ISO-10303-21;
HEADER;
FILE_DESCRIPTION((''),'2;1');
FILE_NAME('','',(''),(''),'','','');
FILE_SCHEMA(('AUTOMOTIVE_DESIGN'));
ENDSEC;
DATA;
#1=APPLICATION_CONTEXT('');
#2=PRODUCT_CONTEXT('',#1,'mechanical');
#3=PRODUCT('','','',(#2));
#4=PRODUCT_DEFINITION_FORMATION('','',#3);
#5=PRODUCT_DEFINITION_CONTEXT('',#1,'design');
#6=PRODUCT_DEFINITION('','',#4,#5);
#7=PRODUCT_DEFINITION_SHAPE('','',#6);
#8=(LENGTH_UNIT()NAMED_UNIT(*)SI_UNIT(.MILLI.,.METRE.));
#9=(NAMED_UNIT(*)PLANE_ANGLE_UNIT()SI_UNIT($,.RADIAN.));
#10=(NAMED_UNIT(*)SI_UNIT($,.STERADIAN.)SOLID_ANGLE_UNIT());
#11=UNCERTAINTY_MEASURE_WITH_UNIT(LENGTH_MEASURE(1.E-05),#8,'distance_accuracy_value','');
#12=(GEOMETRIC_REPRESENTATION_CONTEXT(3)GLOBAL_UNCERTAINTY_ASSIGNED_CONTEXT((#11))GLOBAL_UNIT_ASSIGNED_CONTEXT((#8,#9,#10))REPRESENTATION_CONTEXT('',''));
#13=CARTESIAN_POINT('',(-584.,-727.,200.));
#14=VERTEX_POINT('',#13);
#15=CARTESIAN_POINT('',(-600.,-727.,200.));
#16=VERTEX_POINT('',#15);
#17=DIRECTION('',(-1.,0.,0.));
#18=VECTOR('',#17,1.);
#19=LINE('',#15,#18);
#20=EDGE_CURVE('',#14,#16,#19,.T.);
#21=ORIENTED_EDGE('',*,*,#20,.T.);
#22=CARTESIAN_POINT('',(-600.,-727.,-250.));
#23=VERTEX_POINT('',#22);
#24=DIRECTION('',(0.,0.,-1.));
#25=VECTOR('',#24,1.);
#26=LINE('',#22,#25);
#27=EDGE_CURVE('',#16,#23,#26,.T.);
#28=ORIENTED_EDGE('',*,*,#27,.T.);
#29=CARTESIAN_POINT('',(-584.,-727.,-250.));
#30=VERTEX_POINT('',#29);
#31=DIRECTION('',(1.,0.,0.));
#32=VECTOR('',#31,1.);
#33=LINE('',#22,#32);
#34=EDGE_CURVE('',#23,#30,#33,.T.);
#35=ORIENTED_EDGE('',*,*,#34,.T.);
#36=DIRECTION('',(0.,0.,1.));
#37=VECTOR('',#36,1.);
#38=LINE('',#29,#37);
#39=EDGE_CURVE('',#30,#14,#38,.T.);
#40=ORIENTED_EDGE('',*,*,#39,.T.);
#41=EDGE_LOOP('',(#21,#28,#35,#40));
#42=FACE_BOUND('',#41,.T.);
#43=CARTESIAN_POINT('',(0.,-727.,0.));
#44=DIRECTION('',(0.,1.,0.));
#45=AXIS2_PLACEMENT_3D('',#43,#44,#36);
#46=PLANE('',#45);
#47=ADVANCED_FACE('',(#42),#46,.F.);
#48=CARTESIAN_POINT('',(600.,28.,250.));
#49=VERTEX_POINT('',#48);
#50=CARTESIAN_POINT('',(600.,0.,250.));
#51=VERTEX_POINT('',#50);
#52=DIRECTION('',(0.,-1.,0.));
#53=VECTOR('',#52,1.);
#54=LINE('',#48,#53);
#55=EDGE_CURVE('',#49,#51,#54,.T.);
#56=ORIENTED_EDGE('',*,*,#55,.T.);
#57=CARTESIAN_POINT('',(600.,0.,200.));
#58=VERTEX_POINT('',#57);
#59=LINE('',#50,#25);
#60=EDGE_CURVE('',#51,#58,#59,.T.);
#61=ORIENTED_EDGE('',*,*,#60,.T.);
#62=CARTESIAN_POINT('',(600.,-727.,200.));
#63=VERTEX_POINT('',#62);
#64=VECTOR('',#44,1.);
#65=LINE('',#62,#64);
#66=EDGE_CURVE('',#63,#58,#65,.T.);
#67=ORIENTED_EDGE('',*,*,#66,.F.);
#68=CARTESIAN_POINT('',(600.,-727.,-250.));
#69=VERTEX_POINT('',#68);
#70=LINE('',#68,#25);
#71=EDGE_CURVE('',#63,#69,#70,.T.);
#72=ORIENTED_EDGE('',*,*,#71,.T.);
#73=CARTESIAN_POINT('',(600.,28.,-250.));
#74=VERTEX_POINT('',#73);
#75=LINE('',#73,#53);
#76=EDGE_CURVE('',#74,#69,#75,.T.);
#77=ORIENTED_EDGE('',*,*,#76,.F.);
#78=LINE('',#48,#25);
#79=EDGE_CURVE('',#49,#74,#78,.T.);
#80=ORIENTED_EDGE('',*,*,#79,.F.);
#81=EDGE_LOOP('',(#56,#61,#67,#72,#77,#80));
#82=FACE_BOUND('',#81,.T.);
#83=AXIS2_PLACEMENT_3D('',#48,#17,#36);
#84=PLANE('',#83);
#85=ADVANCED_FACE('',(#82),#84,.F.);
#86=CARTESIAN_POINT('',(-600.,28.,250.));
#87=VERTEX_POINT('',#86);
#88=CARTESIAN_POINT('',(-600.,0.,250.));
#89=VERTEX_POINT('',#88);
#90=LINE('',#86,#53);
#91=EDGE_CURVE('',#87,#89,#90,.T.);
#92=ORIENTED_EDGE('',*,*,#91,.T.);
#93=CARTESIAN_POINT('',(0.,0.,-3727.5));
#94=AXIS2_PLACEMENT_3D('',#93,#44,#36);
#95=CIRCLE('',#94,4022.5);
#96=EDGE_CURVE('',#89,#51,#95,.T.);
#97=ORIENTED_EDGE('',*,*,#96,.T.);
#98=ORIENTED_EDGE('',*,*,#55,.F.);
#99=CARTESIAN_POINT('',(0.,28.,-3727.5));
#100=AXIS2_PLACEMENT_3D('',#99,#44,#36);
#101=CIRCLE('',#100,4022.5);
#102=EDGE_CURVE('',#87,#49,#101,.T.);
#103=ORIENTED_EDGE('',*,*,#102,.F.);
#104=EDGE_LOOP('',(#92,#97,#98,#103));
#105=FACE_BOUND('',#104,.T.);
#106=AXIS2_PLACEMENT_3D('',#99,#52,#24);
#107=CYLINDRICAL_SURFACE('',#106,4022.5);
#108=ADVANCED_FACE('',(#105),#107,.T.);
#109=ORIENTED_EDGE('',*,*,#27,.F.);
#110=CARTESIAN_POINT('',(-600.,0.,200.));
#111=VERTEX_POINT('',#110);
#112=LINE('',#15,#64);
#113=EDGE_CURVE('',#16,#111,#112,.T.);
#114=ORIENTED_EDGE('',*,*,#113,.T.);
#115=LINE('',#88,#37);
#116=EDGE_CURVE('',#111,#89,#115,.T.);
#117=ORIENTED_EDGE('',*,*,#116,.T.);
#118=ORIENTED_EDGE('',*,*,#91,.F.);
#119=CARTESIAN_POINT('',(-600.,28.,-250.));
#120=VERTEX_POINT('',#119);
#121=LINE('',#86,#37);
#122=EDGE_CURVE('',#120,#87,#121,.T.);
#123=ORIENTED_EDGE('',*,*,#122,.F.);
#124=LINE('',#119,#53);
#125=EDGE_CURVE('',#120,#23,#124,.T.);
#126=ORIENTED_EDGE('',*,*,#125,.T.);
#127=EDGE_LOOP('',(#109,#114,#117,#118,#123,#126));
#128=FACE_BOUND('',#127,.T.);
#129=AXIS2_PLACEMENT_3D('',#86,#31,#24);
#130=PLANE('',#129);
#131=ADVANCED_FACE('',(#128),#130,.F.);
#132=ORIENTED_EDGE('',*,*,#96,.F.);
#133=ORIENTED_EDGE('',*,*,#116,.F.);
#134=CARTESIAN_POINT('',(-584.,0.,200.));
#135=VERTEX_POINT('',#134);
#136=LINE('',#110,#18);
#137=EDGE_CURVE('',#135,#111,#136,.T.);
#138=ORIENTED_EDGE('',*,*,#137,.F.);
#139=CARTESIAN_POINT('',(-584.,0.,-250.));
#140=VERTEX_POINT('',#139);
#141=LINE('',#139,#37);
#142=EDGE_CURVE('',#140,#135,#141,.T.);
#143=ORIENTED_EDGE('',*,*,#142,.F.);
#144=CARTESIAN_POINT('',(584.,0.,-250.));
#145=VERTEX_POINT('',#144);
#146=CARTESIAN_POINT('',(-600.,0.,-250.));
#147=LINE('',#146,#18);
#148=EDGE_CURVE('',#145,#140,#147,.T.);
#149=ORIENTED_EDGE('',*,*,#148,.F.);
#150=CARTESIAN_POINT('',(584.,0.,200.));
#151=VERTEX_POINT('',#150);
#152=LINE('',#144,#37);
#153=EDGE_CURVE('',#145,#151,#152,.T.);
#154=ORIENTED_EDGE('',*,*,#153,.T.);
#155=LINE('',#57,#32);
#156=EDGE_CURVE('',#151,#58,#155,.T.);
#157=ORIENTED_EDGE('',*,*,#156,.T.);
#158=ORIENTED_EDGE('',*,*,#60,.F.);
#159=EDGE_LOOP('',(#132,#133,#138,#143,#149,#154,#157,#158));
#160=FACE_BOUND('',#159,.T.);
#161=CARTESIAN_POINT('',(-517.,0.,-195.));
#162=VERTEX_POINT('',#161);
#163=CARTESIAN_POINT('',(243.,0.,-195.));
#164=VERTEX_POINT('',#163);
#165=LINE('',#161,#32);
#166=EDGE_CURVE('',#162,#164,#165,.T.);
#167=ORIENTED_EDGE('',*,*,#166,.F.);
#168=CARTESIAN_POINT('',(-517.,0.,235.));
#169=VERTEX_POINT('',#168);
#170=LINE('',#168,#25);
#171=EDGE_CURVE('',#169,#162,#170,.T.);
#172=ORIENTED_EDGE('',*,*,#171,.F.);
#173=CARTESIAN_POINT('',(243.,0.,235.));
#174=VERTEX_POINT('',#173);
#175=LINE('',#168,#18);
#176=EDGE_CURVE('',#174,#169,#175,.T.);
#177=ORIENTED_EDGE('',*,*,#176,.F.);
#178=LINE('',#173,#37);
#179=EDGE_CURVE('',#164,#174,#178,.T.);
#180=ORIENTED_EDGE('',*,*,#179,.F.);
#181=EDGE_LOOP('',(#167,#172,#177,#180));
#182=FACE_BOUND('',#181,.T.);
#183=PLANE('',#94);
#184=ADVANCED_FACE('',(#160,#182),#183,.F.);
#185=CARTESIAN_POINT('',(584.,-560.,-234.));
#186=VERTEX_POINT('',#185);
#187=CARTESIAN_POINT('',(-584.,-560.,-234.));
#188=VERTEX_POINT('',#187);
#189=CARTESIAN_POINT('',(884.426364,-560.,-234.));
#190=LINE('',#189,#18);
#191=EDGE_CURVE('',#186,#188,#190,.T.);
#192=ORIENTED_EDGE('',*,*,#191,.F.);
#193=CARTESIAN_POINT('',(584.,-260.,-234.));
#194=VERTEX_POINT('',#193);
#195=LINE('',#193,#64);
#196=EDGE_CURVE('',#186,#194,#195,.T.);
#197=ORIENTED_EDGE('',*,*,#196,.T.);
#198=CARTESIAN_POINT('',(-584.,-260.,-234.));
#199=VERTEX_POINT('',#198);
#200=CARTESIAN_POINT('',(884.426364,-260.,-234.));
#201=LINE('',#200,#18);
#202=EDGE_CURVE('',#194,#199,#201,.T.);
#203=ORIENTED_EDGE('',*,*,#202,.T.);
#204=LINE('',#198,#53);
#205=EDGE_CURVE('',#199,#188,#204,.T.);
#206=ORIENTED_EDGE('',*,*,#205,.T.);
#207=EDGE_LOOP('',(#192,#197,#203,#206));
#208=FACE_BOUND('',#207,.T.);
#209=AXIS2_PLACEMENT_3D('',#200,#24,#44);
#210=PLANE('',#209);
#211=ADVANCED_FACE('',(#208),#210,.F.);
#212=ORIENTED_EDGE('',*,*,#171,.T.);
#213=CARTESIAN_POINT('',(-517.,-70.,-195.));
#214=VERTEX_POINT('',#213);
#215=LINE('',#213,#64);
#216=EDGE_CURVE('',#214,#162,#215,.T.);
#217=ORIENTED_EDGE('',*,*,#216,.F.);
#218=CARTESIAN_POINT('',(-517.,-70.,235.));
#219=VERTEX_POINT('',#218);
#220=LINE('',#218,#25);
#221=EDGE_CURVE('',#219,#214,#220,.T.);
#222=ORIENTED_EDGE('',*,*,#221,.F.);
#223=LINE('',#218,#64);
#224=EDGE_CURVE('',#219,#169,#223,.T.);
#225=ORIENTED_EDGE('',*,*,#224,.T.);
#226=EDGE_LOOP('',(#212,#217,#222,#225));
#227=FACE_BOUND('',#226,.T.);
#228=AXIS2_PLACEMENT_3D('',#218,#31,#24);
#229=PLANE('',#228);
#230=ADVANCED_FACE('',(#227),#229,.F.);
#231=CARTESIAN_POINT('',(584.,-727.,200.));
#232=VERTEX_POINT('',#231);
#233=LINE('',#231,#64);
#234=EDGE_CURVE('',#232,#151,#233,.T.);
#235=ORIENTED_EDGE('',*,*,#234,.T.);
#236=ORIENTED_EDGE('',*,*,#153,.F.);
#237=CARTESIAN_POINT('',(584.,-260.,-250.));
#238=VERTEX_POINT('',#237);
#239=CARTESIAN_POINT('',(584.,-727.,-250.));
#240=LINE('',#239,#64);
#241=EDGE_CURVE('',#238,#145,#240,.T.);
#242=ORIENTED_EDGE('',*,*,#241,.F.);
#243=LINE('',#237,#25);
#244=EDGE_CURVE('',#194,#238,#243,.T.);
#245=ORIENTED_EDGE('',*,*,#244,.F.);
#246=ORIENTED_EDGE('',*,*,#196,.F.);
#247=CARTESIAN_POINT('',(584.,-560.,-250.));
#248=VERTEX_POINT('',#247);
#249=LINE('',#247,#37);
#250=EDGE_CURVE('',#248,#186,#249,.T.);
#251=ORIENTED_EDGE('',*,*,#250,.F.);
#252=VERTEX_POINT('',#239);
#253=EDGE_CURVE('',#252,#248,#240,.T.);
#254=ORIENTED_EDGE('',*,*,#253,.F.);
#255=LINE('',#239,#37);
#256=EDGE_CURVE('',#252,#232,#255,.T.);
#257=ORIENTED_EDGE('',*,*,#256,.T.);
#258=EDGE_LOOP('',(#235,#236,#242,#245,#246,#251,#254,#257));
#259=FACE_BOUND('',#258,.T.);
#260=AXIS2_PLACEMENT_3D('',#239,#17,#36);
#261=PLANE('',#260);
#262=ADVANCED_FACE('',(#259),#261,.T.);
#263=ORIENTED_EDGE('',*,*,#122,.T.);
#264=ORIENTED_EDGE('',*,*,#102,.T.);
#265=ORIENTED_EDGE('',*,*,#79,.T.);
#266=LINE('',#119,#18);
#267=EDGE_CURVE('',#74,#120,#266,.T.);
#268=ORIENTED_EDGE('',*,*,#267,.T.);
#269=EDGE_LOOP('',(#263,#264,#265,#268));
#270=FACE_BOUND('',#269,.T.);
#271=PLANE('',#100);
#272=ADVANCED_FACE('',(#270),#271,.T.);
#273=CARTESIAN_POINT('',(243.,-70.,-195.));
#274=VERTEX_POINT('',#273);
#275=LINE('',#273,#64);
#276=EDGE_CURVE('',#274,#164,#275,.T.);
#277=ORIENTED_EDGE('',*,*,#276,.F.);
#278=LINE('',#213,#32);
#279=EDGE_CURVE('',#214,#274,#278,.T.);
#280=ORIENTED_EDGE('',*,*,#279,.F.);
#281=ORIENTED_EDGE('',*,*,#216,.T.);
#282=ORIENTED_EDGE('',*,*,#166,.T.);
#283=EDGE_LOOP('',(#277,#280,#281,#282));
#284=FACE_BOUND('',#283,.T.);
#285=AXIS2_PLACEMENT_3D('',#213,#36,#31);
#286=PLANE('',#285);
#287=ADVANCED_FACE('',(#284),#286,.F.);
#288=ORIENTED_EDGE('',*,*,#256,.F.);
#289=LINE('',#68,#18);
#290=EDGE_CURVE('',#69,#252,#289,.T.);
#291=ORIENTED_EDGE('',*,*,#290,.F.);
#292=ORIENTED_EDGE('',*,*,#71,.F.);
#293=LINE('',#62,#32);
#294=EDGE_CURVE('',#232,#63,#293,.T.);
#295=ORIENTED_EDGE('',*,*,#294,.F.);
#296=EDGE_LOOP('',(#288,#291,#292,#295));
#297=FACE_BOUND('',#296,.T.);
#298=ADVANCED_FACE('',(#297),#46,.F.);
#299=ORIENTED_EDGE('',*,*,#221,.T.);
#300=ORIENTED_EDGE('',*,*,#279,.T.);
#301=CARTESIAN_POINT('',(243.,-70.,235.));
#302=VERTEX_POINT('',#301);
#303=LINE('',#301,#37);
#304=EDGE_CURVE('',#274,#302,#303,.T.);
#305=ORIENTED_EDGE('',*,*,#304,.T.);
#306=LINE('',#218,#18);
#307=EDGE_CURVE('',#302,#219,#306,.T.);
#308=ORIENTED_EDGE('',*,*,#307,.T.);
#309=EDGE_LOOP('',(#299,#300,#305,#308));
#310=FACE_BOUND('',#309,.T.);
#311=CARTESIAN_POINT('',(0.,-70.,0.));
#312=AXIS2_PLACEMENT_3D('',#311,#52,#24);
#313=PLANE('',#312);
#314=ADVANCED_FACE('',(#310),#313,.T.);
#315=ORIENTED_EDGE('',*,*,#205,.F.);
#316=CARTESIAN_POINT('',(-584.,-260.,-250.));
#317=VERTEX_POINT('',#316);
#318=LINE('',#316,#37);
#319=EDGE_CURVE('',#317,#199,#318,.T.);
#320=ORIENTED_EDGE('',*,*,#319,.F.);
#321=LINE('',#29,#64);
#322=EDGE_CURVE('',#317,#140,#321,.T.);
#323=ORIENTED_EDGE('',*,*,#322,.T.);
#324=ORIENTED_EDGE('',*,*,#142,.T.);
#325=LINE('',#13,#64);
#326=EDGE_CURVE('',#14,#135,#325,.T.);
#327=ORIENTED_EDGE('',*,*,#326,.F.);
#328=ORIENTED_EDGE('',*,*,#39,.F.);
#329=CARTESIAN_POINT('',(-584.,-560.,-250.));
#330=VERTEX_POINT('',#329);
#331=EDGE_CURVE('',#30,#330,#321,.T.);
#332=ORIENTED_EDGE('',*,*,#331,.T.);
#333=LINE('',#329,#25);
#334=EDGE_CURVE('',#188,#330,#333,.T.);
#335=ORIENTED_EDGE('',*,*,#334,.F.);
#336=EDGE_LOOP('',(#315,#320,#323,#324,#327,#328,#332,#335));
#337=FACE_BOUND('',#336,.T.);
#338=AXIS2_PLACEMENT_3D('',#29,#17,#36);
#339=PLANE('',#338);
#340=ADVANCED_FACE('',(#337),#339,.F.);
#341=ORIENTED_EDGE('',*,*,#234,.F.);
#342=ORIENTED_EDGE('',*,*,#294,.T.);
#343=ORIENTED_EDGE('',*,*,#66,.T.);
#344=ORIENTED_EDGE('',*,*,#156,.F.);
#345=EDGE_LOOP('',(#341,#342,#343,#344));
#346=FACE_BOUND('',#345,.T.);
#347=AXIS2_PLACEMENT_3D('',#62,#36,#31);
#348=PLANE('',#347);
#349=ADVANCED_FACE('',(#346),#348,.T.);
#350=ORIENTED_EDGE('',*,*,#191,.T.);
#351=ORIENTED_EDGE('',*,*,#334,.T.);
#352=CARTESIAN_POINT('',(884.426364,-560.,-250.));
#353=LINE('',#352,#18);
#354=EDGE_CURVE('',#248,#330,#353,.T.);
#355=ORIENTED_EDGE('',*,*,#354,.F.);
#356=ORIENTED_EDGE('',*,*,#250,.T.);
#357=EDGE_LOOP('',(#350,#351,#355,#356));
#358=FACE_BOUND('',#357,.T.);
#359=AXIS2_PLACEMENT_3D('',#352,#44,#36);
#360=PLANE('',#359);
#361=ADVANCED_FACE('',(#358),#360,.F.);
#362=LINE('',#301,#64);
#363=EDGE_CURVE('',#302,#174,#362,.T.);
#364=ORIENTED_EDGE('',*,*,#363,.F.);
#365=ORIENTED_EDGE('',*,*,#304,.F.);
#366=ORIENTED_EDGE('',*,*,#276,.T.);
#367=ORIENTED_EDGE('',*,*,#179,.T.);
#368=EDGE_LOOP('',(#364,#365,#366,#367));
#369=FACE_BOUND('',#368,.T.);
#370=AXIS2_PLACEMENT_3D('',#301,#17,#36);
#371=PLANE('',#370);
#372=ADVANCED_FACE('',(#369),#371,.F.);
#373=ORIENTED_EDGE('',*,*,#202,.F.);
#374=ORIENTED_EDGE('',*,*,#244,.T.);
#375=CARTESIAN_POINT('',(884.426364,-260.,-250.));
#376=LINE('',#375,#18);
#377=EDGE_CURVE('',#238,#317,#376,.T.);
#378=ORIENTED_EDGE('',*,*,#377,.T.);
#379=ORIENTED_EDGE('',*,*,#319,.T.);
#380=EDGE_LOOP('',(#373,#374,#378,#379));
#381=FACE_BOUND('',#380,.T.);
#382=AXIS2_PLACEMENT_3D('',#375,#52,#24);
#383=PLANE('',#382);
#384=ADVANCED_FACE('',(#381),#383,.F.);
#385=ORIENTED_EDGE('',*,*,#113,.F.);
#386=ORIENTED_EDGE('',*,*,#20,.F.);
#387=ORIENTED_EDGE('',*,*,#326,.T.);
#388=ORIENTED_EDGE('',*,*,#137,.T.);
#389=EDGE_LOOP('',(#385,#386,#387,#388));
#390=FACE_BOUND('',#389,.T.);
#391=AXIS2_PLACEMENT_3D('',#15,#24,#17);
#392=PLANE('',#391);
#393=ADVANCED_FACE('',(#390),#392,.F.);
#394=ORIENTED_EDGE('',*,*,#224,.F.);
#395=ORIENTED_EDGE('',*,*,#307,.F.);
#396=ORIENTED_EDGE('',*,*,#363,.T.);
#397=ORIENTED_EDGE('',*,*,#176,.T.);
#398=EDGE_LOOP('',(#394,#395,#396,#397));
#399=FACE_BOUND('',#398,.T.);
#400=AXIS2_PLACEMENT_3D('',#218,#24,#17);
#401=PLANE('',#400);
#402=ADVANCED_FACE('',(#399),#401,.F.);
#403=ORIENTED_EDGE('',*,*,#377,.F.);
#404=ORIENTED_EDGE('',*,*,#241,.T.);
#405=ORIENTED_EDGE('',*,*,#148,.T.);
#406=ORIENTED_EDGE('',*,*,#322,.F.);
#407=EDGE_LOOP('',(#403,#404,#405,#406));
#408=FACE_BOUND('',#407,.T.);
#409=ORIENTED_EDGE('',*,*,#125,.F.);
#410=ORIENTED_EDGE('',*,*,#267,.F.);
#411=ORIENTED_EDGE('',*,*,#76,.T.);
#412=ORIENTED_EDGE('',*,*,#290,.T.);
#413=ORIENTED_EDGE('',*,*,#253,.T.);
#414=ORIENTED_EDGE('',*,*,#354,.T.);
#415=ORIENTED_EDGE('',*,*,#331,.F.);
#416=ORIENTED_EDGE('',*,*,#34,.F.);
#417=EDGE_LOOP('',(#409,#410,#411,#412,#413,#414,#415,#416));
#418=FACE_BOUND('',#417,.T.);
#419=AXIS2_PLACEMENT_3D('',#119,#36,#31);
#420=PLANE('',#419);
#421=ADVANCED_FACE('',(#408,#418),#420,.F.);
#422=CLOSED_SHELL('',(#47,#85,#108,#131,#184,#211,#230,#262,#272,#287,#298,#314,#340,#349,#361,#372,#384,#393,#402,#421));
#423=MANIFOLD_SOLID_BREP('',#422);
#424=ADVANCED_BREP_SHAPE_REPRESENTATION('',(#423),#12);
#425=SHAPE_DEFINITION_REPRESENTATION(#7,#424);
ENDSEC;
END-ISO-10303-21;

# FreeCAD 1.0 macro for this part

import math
import FreeCAD as App
import Part
import Sketcher

V = App.Vector
Q = App.Units.Quantity


def add_polygon(sketch, points):
    """Adds a closed chain of lines whose ends are joined by coincident constraints."""
    first, n = sketch.GeometryCount, len(points)
    for a, b in zip(points, points[1:] + points[:1]):
        sketch.addGeometry(Part.LineSegment(App.Vector(*a, 0), App.Vector(*b, 0)), False)
    for i in range(n):
        sketch.addConstraint(Sketcher.Constraint("Coincident", first + i, 2, first + (i + 1) % n, 1))

doc = App.newDocument("Part")
params = doc.addObject("Spreadsheet::Sheet", "Params")
for row, (alias, value) in enumerate([
    ("sketch1_radius", "4022.5 mm"),
    ("sketch1_width", "1200 mm"),
    ("sketch1_height", "500 mm"),
    ("pad1_length", "28 mm"),
    ("sketch2_width", "16 mm"),
    ("sketch2_height", "450 mm"),
    ("pad2_length", "727 mm"),
    ("sketch3_width", "300 mm"),
    ("sketch3_height", "16 mm"),
    ("pad3_length", "1168 mm"),
    ("sketch4_width", "760 mm"),
    ("sketch4_height", "430 mm"),
    ("pad4_length", "70 mm"),
], start=1):
    params.set(f"A{row}", alias)
    params.set(f"B{row}", "=" + value)
    params.setAlias(f"B{row}", alias)

body = doc.addObject("PartDesign::Body", "Body")

sketch1 = body.newObject("Sketcher::SketchObject", "Sketch")
sketch1.AttachmentSupport = (doc.getObject("XZ_Plane"), [""])
sketch1.MapMode = "FlatFace"
sketch1.addGeometry([
    Part.LineSegment(V(-600, -250, 0), V(-600, 250, 0)),
    Part.ArcOfCircle(Part.Circle(V(0, -3728, 0), V(0, 0, 1), 4022), math.radians(81.42), math.radians(98.58)),
    Part.LineSegment(V(600, 250, 0), V(600, -250, 0)),
    Part.LineSegment(V(600, -250, 0), V(-600, -250, 0)),
], False)
sketch1.addConstraint([
    Sketcher.Constraint("Coincident", 0, 2, 1, 2),
    Sketcher.Constraint("Coincident", 1, 1, 2, 1),
    Sketcher.Constraint("Coincident", 2, 2, 3, 1),
    Sketcher.Constraint("Coincident", 3, 2, 0, 1),
    Sketcher.Constraint("Vertical", 0),
    Sketcher.Constraint("Vertical", 2),
    Sketcher.Constraint("Horizontal", 3),
    Sketcher.Constraint("Symmetric", 0, 2, 2, 2, -1, 1),
    Sketcher.Constraint("PointOnObject", 1, 3, -2),
    Sketcher.Constraint("Radius", 1, Q("4022.5 mm")),
    Sketcher.Constraint("DistanceX", 3, 2, 3, 1, Q("1200 mm")),
    Sketcher.Constraint("DistanceY", 0, 1, 0, 2, Q("500 mm")),
])
sketch1.setExpression("Constraints[9]", "Params.sketch1_radius")
sketch1.setExpression("Constraints[10]", "Params.sketch1_width")
sketch1.setExpression("Constraints[11]", "Params.sketch1_height")
pad1 = body.newObject("PartDesign::Pad", "Pad")
pad1.Profile = sketch1
pad1.setExpression("Length", "Params.pad1_length")
pad1.Reversed = True

sketch2 = body.newObject("Sketcher::SketchObject", "Sketch001")
sketch2.AttachmentSupport = (doc.getObject("XZ_Plane"), [""])
sketch2.MapMode = "FlatFace"
add_polygon(sketch2, [(-600, 200), (-600, -250), (-584, -250), (-584, 200)])
sketch2.addConstraint([
    Sketcher.Constraint("Vertical", 0),
    Sketcher.Constraint("Horizontal", 1),
    Sketcher.Constraint("Vertical", 2),
    Sketcher.Constraint("Horizontal", 3),
    Sketcher.Constraint("DistanceX", 1, 1, 1, 2, Q("16 mm")),
    Sketcher.Constraint("DistanceY", 0, 2, 0, 1, Q("450 mm")),
    Sketcher.Constraint("DistanceX", 0, 2, -1, 1, Q("600 mm")),
    Sketcher.Constraint("DistanceY", 0, 2, -1, 1, Q("250 mm")),
])
sketch2.setExpression("Constraints[8]", "Params.sketch2_width")
sketch2.setExpression("Constraints[9]", "Params.sketch2_height")
pad2 = body.newObject("PartDesign::Pad", "Pad001")
pad2.Profile = sketch2
pad2.setExpression("Length", "Params.pad2_length")
doc.recompute()

mirrored = body.newObject("PartDesign::Mirrored", "Mirrored")
mirrored.Originals = [pad2]
mirrored.MirrorPlane = (doc.getObject("YZ_Plane"), [""])
body.Tip = mirrored

sketch3 = body.newObject("Sketcher::SketchObject", "Sketch002")
sketch3.AttachmentSupport = (doc.getObject("YZ_Plane"), [""])
sketch3.MapMode = "FlatFace"
sketch3.AttachmentOffset = App.Placement(V(0, 0, -584), App.Rotation())
add_polygon(sketch3, [(-260, -234), (-560, -234), (-560, -250), (-260, -250)])
sketch3.addConstraint([
    Sketcher.Constraint("Horizontal", 0),
    Sketcher.Constraint("Vertical", 1),
    Sketcher.Constraint("Horizontal", 2),
    Sketcher.Constraint("Vertical", 3),
    Sketcher.Constraint("DistanceX", 0, 2, 0, 1, Q("300 mm")),
    Sketcher.Constraint("DistanceY", 1, 2, 1, 1, Q("16 mm")),
    Sketcher.Constraint("DistanceX", 0, 2, -1, 1, Q("560 mm")),
    Sketcher.Constraint("DistanceY", 0, 2, -1, 1, Q("234 mm")),
])
sketch3.setExpression("Constraints[8]", "Params.sketch3_width")
sketch3.setExpression("Constraints[9]", "Params.sketch3_height")
pad3 = body.newObject("PartDesign::Pad", "Pad002")
pad3.Profile = sketch3
pad3.setExpression("Length", "Params.pad3_length")

sketch4 = body.newObject("Sketcher::SketchObject", "Sketch003")
sketch4.AttachmentSupport = (doc.getObject("XZ_Plane"), [""])
sketch4.MapMode = "FlatFace"
add_polygon(sketch4, [(-517, 235), (-517, -195), (243, -195), (243, 235)])
sketch4.addConstraint([
    Sketcher.Constraint("Vertical", 0),
    Sketcher.Constraint("Horizontal", 1),
    Sketcher.Constraint("Vertical", 2),
    Sketcher.Constraint("Horizontal", 3),
    Sketcher.Constraint("DistanceX", 1, 1, 1, 2, Q("760 mm")),
    Sketcher.Constraint("DistanceY", 0, 2, 0, 1, Q("430 mm")),
    Sketcher.Constraint("DistanceX", 0, 2, -1, 1, Q("517 mm")),
    Sketcher.Constraint("DistanceY", 0, 2, -1, 1, Q("195 mm")),
])
sketch4.setExpression("Constraints[8]", "Params.sketch4_width")
sketch4.setExpression("Constraints[9]", "Params.sketch4_height")
pad4 = body.newObject("PartDesign::Pad", "Pad003")
pad4.Profile = sketch4
pad4.setExpression("Length", "Params.pad4_length")

doc.recompute()
